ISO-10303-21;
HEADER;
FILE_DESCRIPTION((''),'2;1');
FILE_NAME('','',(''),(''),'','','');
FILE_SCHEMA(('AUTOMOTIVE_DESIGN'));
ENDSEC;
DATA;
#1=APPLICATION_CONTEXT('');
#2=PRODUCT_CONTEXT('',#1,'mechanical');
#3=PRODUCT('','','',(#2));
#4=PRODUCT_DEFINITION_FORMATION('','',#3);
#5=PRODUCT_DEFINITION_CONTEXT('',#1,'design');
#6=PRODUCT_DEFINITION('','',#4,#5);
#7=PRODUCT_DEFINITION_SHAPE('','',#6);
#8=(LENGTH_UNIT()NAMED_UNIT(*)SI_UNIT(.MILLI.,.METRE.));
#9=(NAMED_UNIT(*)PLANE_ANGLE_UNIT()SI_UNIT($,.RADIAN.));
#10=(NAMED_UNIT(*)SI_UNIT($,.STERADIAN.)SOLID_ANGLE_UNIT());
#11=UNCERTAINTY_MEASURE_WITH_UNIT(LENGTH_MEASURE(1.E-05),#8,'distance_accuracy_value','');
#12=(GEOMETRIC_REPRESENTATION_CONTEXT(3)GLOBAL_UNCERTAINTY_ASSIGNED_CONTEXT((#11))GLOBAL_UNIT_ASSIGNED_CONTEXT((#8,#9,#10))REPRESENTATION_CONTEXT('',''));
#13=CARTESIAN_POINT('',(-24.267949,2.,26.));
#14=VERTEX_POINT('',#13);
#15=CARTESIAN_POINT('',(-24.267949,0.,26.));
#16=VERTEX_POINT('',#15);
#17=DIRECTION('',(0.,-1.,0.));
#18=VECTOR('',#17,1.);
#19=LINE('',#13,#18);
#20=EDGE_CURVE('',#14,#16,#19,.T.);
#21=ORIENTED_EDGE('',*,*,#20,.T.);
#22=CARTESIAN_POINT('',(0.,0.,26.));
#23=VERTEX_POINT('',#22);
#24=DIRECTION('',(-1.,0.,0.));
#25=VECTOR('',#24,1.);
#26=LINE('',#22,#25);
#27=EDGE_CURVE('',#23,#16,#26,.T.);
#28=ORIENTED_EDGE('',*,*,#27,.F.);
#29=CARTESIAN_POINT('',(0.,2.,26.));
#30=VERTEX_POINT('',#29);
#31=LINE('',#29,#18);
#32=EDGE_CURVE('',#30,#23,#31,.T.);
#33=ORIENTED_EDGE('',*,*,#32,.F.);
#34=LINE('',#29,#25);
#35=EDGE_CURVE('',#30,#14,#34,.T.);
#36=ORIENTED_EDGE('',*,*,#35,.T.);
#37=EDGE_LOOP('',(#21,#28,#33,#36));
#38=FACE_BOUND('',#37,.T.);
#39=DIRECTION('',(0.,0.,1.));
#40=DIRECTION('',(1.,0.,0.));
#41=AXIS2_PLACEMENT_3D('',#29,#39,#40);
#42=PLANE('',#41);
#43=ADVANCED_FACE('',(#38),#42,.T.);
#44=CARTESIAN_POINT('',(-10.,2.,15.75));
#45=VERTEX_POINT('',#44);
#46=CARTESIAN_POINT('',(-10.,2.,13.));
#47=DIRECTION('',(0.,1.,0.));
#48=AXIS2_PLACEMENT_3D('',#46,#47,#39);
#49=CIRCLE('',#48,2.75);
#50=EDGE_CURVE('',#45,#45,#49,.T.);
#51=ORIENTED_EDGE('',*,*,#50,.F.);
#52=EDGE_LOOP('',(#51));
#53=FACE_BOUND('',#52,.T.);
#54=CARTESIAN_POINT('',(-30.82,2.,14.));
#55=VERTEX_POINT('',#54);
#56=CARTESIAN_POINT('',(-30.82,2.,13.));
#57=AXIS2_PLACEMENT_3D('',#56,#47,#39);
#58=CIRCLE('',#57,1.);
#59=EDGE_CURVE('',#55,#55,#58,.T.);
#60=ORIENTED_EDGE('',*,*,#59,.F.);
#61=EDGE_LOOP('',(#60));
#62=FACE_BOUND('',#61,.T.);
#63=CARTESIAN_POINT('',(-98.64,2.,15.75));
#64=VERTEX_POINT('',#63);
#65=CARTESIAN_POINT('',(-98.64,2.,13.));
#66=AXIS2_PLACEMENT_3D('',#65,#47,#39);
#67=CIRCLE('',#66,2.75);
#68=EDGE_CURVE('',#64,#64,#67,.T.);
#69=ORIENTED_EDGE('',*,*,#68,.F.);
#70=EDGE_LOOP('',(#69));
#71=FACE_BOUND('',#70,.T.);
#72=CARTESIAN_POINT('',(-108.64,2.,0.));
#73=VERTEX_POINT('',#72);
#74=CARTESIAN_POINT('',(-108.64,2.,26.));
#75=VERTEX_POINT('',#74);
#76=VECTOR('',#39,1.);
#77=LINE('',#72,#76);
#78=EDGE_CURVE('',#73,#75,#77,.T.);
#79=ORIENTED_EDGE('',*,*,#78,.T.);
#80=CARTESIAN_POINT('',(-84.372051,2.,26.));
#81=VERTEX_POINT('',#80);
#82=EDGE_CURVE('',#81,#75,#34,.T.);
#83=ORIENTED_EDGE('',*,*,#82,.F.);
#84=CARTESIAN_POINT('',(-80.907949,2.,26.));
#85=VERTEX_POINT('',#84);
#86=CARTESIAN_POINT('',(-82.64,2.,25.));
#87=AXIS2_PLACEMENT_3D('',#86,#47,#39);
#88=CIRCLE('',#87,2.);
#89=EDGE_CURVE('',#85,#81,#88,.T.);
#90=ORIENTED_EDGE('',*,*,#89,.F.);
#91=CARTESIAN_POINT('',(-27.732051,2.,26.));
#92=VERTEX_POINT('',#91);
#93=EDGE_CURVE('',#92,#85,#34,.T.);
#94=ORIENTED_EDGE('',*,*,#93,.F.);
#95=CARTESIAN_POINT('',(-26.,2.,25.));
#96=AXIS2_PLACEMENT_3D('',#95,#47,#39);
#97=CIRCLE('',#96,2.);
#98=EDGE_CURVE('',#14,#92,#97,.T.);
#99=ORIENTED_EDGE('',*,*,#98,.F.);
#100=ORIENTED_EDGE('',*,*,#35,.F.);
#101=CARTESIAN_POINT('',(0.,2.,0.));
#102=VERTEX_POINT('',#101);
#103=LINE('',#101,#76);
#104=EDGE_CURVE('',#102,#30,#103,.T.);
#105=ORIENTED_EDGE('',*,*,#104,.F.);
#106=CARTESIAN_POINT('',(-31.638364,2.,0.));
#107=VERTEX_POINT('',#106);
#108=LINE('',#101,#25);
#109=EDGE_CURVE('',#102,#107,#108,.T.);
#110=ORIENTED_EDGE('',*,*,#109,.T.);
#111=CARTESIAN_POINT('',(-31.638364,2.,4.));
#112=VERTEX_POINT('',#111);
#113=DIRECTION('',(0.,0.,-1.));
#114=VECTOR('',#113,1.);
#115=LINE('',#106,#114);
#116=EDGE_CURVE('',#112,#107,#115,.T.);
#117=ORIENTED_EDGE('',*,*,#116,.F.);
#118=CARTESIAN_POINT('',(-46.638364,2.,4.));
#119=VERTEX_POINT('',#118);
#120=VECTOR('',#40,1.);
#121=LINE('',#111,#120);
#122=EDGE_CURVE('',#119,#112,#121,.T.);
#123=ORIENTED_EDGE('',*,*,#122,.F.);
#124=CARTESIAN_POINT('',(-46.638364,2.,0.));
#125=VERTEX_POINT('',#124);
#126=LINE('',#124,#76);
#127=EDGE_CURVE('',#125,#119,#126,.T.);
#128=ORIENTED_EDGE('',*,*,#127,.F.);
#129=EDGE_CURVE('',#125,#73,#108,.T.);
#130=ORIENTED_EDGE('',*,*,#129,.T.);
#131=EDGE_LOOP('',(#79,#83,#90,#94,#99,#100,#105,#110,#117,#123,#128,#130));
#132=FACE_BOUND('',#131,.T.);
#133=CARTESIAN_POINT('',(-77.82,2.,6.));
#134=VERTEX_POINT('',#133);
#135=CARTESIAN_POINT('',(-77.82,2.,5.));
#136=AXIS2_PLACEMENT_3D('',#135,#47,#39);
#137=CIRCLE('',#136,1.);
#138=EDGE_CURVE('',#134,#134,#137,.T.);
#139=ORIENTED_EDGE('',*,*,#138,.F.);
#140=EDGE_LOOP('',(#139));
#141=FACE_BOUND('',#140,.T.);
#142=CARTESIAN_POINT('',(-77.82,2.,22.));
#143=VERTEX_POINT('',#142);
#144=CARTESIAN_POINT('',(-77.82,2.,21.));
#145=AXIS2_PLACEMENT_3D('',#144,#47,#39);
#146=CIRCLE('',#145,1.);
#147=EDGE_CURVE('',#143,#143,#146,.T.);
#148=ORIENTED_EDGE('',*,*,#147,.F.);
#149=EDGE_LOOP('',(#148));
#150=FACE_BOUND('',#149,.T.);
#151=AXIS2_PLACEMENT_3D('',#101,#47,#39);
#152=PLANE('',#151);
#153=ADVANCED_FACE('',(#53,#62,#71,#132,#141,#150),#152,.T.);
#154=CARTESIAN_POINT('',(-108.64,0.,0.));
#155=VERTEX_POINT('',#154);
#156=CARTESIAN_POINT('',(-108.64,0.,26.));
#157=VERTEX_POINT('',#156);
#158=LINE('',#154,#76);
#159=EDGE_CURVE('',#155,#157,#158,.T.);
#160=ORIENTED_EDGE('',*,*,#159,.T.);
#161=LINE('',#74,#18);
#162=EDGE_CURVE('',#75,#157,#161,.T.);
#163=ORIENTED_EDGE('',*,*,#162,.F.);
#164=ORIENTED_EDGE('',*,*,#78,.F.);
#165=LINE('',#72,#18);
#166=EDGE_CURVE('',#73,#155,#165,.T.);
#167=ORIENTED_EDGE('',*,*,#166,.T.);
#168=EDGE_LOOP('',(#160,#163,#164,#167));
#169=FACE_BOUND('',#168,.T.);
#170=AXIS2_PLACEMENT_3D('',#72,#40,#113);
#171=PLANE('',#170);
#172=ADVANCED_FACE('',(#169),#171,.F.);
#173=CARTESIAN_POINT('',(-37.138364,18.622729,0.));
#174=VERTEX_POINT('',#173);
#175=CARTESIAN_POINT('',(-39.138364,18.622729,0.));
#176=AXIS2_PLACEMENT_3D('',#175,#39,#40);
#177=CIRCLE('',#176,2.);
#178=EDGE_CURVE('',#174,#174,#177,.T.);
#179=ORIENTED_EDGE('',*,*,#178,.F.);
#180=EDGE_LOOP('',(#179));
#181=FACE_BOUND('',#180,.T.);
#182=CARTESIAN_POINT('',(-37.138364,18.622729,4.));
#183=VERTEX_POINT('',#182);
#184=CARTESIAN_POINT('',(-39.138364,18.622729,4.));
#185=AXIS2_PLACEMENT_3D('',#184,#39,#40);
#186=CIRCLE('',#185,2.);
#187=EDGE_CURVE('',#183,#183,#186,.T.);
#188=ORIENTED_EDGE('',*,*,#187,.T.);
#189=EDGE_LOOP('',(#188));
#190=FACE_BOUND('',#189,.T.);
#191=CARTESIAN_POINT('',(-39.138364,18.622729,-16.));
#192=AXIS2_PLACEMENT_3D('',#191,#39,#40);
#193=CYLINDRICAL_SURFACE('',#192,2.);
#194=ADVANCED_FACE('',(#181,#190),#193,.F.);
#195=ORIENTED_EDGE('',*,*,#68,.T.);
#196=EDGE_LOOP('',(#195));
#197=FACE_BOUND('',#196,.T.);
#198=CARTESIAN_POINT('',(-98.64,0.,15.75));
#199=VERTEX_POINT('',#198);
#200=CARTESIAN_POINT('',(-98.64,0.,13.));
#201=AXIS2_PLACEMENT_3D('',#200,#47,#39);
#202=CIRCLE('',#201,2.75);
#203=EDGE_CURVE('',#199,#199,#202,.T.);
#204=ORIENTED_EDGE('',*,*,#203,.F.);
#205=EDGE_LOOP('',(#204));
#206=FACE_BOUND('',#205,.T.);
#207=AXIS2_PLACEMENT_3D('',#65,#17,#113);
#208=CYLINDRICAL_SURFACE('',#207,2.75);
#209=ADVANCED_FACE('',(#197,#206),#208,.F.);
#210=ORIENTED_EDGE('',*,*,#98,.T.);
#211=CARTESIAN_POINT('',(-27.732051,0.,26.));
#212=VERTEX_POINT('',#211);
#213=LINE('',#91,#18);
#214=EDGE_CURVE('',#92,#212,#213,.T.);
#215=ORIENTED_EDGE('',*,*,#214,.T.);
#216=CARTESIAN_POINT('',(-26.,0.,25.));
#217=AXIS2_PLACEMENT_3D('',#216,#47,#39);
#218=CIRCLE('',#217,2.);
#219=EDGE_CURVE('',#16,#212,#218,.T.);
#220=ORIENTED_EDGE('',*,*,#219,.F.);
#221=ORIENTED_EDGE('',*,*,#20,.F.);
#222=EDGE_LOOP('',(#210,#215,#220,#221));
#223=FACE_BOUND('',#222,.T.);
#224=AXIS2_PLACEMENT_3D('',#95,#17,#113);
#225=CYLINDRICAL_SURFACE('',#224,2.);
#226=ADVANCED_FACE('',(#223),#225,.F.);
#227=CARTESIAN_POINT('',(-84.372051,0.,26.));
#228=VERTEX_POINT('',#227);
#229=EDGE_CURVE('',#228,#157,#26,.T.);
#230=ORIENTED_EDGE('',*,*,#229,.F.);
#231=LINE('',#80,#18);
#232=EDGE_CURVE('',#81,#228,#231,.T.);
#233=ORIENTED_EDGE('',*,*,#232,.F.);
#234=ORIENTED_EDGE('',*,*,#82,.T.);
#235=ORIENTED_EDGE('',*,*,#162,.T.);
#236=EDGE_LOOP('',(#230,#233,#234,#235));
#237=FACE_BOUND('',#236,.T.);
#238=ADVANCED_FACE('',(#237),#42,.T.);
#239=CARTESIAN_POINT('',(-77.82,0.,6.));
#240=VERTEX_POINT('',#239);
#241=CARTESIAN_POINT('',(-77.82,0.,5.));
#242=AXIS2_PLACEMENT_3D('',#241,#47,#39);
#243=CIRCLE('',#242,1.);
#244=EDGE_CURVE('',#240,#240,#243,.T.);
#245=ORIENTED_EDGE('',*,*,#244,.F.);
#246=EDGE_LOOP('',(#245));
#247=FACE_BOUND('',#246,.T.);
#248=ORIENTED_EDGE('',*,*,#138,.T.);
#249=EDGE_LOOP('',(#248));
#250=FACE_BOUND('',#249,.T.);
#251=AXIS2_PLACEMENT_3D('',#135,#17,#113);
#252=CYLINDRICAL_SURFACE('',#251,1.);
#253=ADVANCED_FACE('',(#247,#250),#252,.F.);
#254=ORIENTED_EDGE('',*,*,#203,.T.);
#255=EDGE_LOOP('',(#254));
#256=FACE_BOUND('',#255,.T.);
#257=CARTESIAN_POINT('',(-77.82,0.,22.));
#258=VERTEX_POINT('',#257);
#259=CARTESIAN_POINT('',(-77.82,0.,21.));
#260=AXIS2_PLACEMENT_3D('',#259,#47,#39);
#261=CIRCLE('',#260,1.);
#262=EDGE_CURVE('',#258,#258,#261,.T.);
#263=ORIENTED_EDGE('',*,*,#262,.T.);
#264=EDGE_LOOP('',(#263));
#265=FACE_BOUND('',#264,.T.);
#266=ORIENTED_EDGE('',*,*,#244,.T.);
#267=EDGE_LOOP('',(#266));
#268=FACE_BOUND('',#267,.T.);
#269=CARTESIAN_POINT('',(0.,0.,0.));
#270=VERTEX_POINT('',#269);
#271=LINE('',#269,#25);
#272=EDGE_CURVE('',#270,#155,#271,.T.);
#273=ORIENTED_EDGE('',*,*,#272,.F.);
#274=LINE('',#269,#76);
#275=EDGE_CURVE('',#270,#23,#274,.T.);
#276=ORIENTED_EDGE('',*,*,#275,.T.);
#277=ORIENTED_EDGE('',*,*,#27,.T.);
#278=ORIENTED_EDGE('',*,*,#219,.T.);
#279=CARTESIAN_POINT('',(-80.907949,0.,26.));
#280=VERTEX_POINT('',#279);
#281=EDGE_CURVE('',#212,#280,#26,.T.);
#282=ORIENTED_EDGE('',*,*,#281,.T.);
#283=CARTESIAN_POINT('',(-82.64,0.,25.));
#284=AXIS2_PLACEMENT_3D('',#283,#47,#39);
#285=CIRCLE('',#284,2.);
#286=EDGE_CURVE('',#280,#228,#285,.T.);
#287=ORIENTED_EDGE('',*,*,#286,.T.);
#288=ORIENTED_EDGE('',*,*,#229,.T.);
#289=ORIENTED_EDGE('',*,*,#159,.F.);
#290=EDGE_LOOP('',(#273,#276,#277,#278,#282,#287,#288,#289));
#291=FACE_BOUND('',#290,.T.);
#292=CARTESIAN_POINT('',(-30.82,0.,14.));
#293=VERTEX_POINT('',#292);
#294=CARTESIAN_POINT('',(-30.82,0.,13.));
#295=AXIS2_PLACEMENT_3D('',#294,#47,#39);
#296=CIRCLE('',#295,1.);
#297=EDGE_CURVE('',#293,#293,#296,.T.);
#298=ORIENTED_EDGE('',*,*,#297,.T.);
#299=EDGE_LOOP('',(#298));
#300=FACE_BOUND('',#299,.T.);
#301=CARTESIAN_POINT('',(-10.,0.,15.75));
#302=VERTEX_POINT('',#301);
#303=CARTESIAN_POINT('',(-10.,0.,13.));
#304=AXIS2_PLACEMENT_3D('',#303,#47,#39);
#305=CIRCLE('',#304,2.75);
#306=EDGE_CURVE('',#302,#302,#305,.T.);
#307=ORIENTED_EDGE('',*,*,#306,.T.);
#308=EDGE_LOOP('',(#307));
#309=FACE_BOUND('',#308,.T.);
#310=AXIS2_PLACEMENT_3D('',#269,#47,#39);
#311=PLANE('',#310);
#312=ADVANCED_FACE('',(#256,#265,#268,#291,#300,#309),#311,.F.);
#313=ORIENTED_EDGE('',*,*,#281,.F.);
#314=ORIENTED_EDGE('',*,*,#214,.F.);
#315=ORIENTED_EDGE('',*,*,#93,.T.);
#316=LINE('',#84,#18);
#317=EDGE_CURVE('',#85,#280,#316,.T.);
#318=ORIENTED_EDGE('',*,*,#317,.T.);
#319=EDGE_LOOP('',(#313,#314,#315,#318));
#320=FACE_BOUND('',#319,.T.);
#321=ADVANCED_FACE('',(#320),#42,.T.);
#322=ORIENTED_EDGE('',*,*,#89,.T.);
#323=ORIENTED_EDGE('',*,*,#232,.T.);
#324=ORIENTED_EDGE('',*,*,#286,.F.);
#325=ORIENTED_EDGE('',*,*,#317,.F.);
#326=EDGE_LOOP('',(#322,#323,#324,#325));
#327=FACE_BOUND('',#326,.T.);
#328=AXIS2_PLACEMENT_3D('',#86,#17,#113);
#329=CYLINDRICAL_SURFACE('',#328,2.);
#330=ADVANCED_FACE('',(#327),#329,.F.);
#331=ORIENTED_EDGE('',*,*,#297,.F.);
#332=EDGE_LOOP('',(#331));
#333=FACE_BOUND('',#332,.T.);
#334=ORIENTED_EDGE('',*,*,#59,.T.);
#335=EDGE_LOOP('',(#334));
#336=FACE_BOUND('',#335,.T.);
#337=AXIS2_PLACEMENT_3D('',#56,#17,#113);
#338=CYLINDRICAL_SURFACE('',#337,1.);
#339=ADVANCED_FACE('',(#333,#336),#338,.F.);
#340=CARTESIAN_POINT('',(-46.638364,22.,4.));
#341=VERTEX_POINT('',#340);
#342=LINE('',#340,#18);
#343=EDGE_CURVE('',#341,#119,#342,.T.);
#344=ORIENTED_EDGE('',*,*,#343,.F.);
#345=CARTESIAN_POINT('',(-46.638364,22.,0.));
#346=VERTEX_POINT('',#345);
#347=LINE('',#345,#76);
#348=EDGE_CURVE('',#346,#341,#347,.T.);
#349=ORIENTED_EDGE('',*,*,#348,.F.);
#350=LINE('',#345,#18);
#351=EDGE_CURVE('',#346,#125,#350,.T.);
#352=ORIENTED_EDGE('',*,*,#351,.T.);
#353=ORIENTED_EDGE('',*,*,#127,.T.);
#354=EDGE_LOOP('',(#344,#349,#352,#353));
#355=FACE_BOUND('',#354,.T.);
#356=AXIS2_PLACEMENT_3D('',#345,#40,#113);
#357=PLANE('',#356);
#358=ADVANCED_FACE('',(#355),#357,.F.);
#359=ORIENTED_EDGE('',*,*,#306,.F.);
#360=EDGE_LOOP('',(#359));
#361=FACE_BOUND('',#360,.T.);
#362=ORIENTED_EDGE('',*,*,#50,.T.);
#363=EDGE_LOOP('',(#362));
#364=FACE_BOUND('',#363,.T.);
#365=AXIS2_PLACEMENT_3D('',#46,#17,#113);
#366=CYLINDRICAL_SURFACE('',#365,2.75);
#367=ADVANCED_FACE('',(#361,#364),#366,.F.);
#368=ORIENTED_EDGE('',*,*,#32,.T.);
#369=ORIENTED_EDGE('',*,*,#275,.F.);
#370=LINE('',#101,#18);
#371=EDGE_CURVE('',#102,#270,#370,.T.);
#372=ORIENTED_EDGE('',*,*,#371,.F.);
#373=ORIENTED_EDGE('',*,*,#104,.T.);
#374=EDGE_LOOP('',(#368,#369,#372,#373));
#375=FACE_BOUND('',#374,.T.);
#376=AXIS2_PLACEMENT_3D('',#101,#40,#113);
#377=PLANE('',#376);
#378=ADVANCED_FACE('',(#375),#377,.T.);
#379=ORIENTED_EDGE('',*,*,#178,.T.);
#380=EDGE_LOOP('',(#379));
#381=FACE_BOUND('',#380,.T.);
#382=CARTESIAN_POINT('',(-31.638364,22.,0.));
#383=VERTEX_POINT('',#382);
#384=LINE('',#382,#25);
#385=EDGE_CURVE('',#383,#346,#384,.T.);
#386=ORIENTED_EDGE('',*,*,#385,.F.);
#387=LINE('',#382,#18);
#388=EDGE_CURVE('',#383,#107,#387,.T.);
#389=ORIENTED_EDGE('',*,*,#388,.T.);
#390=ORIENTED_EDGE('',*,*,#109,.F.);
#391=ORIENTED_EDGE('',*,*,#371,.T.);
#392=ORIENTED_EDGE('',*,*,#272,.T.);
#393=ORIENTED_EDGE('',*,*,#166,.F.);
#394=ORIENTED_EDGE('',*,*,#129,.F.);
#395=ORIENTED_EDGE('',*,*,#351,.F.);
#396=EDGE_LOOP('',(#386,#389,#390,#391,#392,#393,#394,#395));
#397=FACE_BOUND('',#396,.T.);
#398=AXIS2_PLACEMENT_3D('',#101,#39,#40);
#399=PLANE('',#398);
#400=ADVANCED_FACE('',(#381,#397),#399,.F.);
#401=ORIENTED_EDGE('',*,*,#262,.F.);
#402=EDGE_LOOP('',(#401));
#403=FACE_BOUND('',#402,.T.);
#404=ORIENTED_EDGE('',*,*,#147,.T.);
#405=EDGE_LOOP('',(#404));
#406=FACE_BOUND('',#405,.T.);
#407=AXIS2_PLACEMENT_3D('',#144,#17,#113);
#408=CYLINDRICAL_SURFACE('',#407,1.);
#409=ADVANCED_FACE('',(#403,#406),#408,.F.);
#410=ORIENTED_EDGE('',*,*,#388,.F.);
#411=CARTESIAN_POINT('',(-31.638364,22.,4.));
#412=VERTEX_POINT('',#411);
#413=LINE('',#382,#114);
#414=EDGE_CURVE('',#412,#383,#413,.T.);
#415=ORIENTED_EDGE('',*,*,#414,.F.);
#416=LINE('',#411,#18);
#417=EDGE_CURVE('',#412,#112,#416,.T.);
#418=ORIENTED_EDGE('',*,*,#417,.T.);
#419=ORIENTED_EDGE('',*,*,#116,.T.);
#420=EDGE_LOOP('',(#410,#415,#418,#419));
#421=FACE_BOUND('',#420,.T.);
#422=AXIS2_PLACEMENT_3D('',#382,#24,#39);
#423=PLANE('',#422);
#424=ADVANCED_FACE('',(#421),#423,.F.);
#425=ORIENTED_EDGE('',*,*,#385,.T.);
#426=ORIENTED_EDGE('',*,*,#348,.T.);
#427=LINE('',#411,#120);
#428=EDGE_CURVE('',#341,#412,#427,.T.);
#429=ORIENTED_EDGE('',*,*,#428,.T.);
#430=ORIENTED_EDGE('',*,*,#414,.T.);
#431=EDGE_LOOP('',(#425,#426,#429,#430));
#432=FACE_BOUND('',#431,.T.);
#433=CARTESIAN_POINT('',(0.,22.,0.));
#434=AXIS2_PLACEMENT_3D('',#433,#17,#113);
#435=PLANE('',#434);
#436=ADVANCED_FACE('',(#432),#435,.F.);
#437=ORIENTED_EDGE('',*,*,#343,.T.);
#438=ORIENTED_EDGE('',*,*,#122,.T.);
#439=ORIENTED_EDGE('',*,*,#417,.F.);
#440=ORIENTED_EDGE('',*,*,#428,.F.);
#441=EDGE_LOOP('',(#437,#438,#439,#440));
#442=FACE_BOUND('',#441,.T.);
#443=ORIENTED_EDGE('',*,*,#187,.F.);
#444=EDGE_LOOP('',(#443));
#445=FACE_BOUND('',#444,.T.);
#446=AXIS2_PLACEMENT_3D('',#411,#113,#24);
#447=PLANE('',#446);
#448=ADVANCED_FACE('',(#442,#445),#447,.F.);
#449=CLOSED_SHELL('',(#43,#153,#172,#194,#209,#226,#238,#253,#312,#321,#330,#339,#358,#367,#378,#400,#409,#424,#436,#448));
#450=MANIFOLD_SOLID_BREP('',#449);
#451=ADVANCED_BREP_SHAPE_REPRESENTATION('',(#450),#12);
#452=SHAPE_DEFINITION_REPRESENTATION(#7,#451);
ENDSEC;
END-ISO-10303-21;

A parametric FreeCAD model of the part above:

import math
import FreeCAD as App
import Part
import Sketcher

V = App.Vector

doc = App.newDocument("Part")
body = doc.addObject("PartDesign::Body", "Body")

sketch1 = body.newObject("Sketcher::SketchObject", "Sketch")
sketch1.AttachmentSupport = (doc.getObject("XZ_Plane"), [""])
sketch1.MapMode = "FlatFace"
sketch1.addGeometry([
    Part.LineSegment(V(0, 26, 0), V(0, 0, 0)),
    Part.LineSegment(V(0, 0, 0), V(-108.6, 0, 0)),
    Part.LineSegment(V(-108.6, 0, 0), V(-108.6, 26, 0)),
    Part.LineSegment(V(-108.6, 26, 0), V(-84.4, 26, 0)),
    Part.ArcOfCircle(Part.Circle(V(-82.6, 25, 0), V(0, 0, 1), 2), math.radians(150), math.radians(360)),
    Part.ArcOfCircle(Part.Circle(V(-82.6, 25, 0), V(0, 0, 1), 2), math.radians(0), math.radians(30)),
    Part.LineSegment(V(-80.9, 26, 0), V(-27.7, 26, 0)),
    Part.ArcOfCircle(Part.Circle(V(-26, 25, 0), V(0, 0, 1), 2), math.radians(150), math.radians(360)),
    Part.ArcOfCircle(Part.Circle(V(-26, 25, 0), V(0, 0, 1), 2), math.radians(0), math.radians(30)),
    Part.LineSegment(V(-24.3, 26, 0), V(0, 26, 0)),
    Part.Circle(V(-77.8, 21, 0), V(0, 0, 1), 1),
    Part.Circle(V(-98.6, 13, 0), V(0, 0, 1), 2.8),
    Part.Circle(V(-77.8, 5, 0), V(0, 0, 1), 1),
    Part.Circle(V(-30.8, 13, 0), V(0, 0, 1), 1),
    Part.Circle(V(-10, 13, 0), V(0, 0, 1), 2.8),
], False)
sketch1.addConstraint([
    Sketcher.Constraint("Coincident", 0, 2, 1, 1),
    Sketcher.Constraint("Coincident", 1, 2, 2, 1),
    Sketcher.Constraint("Coincident", 2, 2, 3, 1),
    Sketcher.Constraint("Coincident", 3, 2, 4, 1),
    Sketcher.Constraint("Tangent", 4, 2, 5, 1),
    Sketcher.Constraint("Coincident", 5, 2, 6, 1),
    Sketcher.Constraint("Coincident", 6, 2, 7, 1),
    Sketcher.Constraint("Tangent", 7, 2, 8, 1),
    Sketcher.Constraint("Coincident", 8, 2, 9, 1),
    Sketcher.Constraint("Coincident", 9, 2, 0, 1),
    Sketcher.Constraint("Vertical", 0),
    Sketcher.Constraint("Horizontal", 1),
    Sketcher.Constraint("Vertical", 2),
    Sketcher.Constraint("Horizontal", 3),
    Sketcher.Constraint("Horizontal", 6),
    Sketcher.Constraint("Horizontal", 9),
    Sketcher.Constraint("Coincident", 0, 2, -1, 1),
    Sketcher.Constraint("Equal", 4, 5),
    Sketcher.Constraint("Equal", 5, 7),
    Sketcher.Constraint("Equal", 7, 8),
    Sketcher.Constraint("Equal", 10, 12),
    Sketcher.Constraint("Equal", 12, 13),
    Sketcher.Constraint("Equal", 11, 14),
    Sketcher.Constraint("Horizontal", 5, 3, 7, 3),
    Sketcher.Constraint("Horizontal", 11, 3, 13, 3),
    Sketcher.Constraint("Horizontal", 13, 3, 14, 3),
    Sketcher.Constraint("Horizontal", 8, 3, 4, 2),
    Sketcher.Constraint("Horizontal", 3, 2, 5, 2),
    Sketcher.Constraint("Horizontal", 4, 2, 7, 2),
    Sketcher.Constraint("Horizontal", 6, 2, 8, 2),
    Sketcher.Constraint("Vertical", 10, 3, 12, 3),
    Sketcher.Constraint("Equal", 3, 9),
    Sketcher.Constraint("Diameter", 10, 2.0),
    Sketcher.Constraint("Radius", 4, 2.0),
    Sketcher.Constraint("Diameter", 11, 5.5),
    Sketcher.Constraint("DistanceY", 0, 2, 0, 1, 26.0),
    Sketcher.Constraint("DistanceY", -1, 1, 4, 3, 25.0),
    Sketcher.Constraint("DistanceX", 7, 3, -1, 1, 26.0),
    Sketcher.Constraint("DistanceY", -1, 1, 10, 3, 21.0),
    Sketcher.Constraint("DistanceY", -1, 1, 11, 3, 13.0),
    Sketcher.Constraint("DistanceY", -1, 1, 12, 3, 5.0),
    Sketcher.Constraint("DistanceX", 14, 3, -1, 1, 10.0),
    Sketcher.Constraint("DistanceX", 11, 3, 4, 3, 16.0),
    Sketcher.Constraint("DistanceX", 10, 3, 13, 3, 47.0),
    Sketcher.Constraint("DistanceX", 1, 2, 1, 1, 108.64),
    Sketcher.Constraint("DistanceX", 10, 3, -1, 1, 77.82),
])
pad1 = body.newObject("PartDesign::Pad", "Pad")
pad1.Profile = sketch1
pad1.Length = 2
pad1.Reversed = True

sketch2 = body.newObject("Sketcher::SketchObject", "Sketch001")
sketch2.AttachmentSupport = (doc.getObject("XZ_Plane"), [""])
sketch2.MapMode = "FlatFace"
sketch2.AttachmentOffset = App.Placement(V(0, 0, -2), App.Rotation())
sketch2.addGeometry([
    Part.LineSegment(V(-46.6, 0, 0), V(-46.6, 4, 0)),
    Part.LineSegment(V(-46.6, 4, 0), V(-31.6, 4, 0)),
    Part.LineSegment(V(-31.6, 4, 0), V(-31.6, 0, 0)),
    Part.LineSegment(V(-31.6, 0, 0), V(-46.6, 0, 0)),
], False)
sketch2.addConstraint([
    Sketcher.Constraint("Coincident", 0, 2, 1, 1),
    Sketcher.Constraint("Coincident", 1, 2, 2, 1),
    Sketcher.Constraint("Coincident", 2, 2, 3, 1),
    Sketcher.Constraint("Coincident", 3, 2, 0, 1),
    Sketcher.Constraint("Vertical", 0),
    Sketcher.Constraint("Horizontal", 1),
    Sketcher.Constraint("Vertical", 2),
    Sketcher.Constraint("Horizontal", 3),
    Sketcher.Constraint("PointOnObject", 2, 2, -1),
    Sketcher.Constraint("DistanceX", 1, 1, 1, 2, 15.0),
    Sketcher.Constraint("DistanceY", 0, 1, 0, 2, 4.0),
    Sketcher.Constraint("DistanceX", 0, 2, -1, 1, 46.638364),
])
pad2 = body.newObject("PartDesign::Pad", "Pad001")
pad2.Profile = sketch2
pad2.Length = 20
pad2.Reversed = True

sketch3 = body.newObject("Sketcher::SketchObject", "Sketch002")
sketch3.AttachmentSupport = (doc.getObject("XY_Plane"), [""])
sketch3.MapMode = "FlatFace"
sketch3.AttachmentOffset = App.Placement(V(0, 0, 4), App.Rotation())
sketch3.addGeometry(Part.Circle(V(-39.1, 18.6, 0), V(0, 0, 1), 2), False)
sketch3.addConstraint([
    Sketcher.Constraint("Diameter", 0, 4.0),
    Sketcher.Constraint("DistanceY", -1, 1, 0, 3, 18.622729),
    Sketcher.Constraint("DistanceX", 0, 3, -1, 1, 39.138364),
])
pocket1 = body.newObject("PartDesign::Pocket", "Pocket")
pocket1.Profile = sketch3
pocket1.Length = 20

doc.recompute()
